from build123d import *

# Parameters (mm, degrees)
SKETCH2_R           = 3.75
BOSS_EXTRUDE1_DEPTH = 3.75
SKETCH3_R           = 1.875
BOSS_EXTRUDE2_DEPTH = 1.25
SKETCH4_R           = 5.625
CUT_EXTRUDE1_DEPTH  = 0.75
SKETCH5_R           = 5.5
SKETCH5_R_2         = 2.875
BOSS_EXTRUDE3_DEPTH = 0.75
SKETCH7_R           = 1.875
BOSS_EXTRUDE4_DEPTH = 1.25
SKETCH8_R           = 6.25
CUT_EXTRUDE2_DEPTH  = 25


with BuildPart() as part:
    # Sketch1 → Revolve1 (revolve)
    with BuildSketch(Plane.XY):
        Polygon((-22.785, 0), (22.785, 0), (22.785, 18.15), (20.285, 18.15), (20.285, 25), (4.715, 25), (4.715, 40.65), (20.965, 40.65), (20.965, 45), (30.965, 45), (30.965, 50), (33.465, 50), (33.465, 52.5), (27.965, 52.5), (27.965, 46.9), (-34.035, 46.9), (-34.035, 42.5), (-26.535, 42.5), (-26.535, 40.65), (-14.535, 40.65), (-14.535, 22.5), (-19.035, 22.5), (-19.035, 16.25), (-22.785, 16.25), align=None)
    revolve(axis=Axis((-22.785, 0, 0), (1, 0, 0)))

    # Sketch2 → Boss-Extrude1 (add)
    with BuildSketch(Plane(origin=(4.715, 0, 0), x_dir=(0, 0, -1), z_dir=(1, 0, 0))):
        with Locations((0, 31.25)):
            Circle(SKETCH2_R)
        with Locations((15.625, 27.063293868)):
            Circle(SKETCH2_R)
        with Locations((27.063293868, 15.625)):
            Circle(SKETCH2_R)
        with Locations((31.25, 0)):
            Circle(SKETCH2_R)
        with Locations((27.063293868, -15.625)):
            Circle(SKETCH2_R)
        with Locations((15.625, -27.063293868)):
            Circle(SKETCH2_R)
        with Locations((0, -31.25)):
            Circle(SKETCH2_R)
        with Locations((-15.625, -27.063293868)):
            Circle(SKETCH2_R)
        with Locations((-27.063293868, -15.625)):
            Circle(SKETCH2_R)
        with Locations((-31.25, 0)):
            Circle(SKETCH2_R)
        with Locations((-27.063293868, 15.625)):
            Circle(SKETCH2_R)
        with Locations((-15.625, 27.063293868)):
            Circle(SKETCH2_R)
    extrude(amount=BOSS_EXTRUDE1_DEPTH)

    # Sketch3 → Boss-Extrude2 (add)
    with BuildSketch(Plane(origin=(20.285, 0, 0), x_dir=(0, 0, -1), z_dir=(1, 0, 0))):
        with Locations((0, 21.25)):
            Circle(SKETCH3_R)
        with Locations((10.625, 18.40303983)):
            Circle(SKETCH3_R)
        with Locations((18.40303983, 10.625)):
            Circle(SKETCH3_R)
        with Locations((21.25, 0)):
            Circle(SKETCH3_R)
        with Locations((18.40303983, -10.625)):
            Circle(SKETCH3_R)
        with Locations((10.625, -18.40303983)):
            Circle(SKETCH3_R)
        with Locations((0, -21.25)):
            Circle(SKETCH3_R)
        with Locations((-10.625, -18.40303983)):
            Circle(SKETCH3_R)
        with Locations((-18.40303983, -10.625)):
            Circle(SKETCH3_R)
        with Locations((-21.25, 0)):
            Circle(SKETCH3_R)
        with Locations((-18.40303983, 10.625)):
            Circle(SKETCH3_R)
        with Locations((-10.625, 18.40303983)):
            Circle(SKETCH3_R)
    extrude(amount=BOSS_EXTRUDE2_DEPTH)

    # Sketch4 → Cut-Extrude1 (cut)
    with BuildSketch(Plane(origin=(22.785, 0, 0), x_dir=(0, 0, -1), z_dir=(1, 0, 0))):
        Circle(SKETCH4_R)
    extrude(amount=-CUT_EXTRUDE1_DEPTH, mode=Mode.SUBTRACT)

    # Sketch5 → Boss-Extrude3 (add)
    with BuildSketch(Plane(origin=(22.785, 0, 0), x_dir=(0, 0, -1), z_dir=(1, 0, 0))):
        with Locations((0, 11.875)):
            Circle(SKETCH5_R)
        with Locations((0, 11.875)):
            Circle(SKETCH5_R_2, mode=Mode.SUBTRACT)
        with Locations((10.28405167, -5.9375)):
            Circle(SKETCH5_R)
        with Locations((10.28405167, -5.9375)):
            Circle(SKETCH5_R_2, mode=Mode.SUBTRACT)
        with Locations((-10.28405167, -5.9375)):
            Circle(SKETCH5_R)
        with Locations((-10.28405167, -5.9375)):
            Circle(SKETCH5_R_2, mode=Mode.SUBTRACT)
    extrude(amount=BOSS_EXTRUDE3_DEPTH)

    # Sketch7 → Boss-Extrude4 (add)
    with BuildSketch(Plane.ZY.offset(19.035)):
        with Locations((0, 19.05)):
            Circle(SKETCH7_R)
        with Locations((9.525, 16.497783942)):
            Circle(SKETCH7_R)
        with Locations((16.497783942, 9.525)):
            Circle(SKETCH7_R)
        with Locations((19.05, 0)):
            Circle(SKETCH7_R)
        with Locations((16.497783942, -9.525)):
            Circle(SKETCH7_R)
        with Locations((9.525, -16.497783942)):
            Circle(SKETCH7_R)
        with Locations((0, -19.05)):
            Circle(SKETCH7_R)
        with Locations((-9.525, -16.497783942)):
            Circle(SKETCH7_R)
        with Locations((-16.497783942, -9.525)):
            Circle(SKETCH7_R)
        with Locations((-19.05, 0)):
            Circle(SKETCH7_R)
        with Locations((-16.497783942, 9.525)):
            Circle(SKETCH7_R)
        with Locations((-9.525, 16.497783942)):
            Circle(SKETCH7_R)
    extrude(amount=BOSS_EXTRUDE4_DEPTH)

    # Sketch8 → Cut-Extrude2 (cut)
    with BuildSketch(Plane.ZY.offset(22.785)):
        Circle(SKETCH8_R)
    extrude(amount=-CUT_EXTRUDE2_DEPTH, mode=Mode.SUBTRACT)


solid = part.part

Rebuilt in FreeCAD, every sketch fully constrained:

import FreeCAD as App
import Part
import Sketcher

V = App.Vector


def add_polygon(sketch, points):
    """Adds a closed chain of lines whose ends are joined by coincident constraints."""
    first, n = sketch.GeometryCount, len(points)
    for a, b in zip(points, points[1:] + points[:1]):
        sketch.addGeometry(Part.LineSegment(App.Vector(*a, 0), App.Vector(*b, 0)), False)
    for i in range(n):
        sketch.addConstraint(Sketcher.Constraint("Coincident", first + i, 2, first + (i + 1) % n, 1))

doc = App.newDocument("Part")
body = doc.addObject("PartDesign::Body", "Body")

# Sketch on XY plane
sketch1 = doc.addObject("Sketcher::SketchObject", "Sketch")
body.addObject(sketch1)
sketch1.AttachmentSupport = (doc.XY_Plane, [""])
sketch1.MapMode = "FlatFace"
add_polygon(sketch1, [(-22.785, 0), (22.785, 0), (22.785, 18.15), (20.285, 18.15), (20.285, 25), (4.715, 25), (4.715, 40.65), (20.965, 40.65), (20.965, 45), (30.965, 45), (30.965, 50), (33.465, 50), (33.465, 52.5), (27.965, 52.5), (27.965, 46.9), (-34.035, 46.9), (-34.035, 42.5), (-26.535, 42.5), (-26.535, 40.65), (-14.535, 40.65), (-14.535, 22.5), (-19.035, 22.5), (-19.035, 16.25), (-22.785, 16.25)])  # lines 0-23
sketch1.addConstraint(Sketcher.Constraint("Horizontal", 0))
sketch1.addConstraint(Sketcher.Constraint("Vertical", 1))
sketch1.addConstraint(Sketcher.Constraint("Horizontal", 2))
sketch1.addConstraint(Sketcher.Constraint("Vertical", 3))
sketch1.addConstraint(Sketcher.Constraint("Horizontal", 4))
sketch1.addConstraint(Sketcher.Constraint("Vertical", 5))
sketch1.addConstraint(Sketcher.Constraint("Horizontal", 6))
sketch1.addConstraint(Sketcher.Constraint("Vertical", 7))
sketch1.addConstraint(Sketcher.Constraint("Horizontal", 8))
sketch1.addConstraint(Sketcher.Constraint("Vertical", 9))
sketch1.addConstraint(Sketcher.Constraint("Horizontal", 10))
sketch1.addConstraint(Sketcher.Constraint("Vertical", 11))
sketch1.addConstraint(Sketcher.Constraint("Horizontal", 12))
sketch1.addConstraint(Sketcher.Constraint("Vertical", 13))
sketch1.addConstraint(Sketcher.Constraint("Horizontal", 14))
sketch1.addConstraint(Sketcher.Constraint("Vertical", 15))
sketch1.addConstraint(Sketcher.Constraint("Horizontal", 16))
sketch1.addConstraint(Sketcher.Constraint("Vertical", 17))
sketch1.addConstraint(Sketcher.Constraint("Horizontal", 18))
sketch1.addConstraint(Sketcher.Constraint("Vertical", 19))
sketch1.addConstraint(Sketcher.Constraint("Horizontal", 20))
sketch1.addConstraint(Sketcher.Constraint("Vertical", 21))
sketch1.addConstraint(Sketcher.Constraint("Horizontal", 22))
sketch1.addConstraint(Sketcher.Constraint("Vertical", 23))
sketch1.addConstraint(Sketcher.Constraint("Symmetric", 0, 2, 23, 2, -1, 1))
sketch1.addConstraint(Sketcher.Constraint("Horizontal", 6, 2, 17, 2))
sketch1.addConstraint(Sketcher.Constraint("Equal", 2, 10))
sketch1.addConstraint(Sketcher.Constraint("Equal", 10, 11))
sketch1.addConstraint(Sketcher.Constraint("Equal", 1, 19))
sketch1.addConstraint(Sketcher.Constraint("Equal", 6, 23))
sketch1.addConstraint(Sketcher.Constraint("DistanceX", 8, 1, 8, 2, 10.0))
sketch1.addConstraint(Sketcher.Constraint("DistanceX", 14, 2, 14, 1, 62.0))
sketch1.addConstraint(Sketcher.Constraint("DistanceX", 18, 1, 18, 2, 12.0))
sketch1.addConstraint(Sketcher.Constraint("DistanceY", 9, 1, 9, 2, 5.0))
sketch1.addConstraint(Sketcher.Constraint("DistanceX", 2, 2, 2, 1, 2.5))
sketch1.addConstraint(Sketcher.Constraint("DistanceX", 12, 2, 12, 1, 5.5))
sketch1.addConstraint(Sketcher.Constraint("DistanceX", 16, 1, 16, 2, 7.5))
sketch1.addConstraint(Sketcher.Constraint("DistanceX", 20, 2, 20, 1, 4.5))
sketch1.addConstraint(Sketcher.Constraint("DistanceY", 13, 2, 13, 1, 5.6))
sketch1.addConstraint(Sketcher.Constraint("DistanceY", 15, 2, 15, 1, 4.4))
sketch1.addConstraint(Sketcher.Constraint("DistanceY", -1, 1, 3, 2, 25.0))
sketch1.addConstraint(Sketcher.Constraint("DistanceY", -1, 1, 7, 2, 45.0))
sketch1.addConstraint(Sketcher.Constraint("DistanceY", 19, 2, 16, 2, 20.0))
sketch1.addConstraint(Sketcher.Constraint("DistanceX", 0, 1, 0, 2, 45.57))
sketch1.addConstraint(Sketcher.Constraint("DistanceX", 4, 2, 4, 1, 15.57))
sketch1.addConstraint(Sketcher.Constraint("DistanceX", 6, 1, 6, 2, 16.25))
sketch1.addConstraint(Sketcher.Constraint("DistanceY", 1, 1, 1, 2, 18.15))
revolution = doc.addObject("PartDesign::Revolution", "Revolution")
body.addObject(revolution)
revolution.Profile = sketch1
revolution.ReferenceAxis = (sketch1, ["H_Axis"])
revolution.Angle = 360

# Sketch on YZ plane
sketch2 = doc.addObject("Sketcher::SketchObject", "Sketch001")
body.addObject(sketch2)
sketch2.AttachmentSupport = (doc.YZ_Plane, [""])
sketch2.MapMode = "FlatFace"
sketch2.AttachmentOffset = App.Placement(V(0, 0, 4.715), App.Rotation())
sketch2.addGeometry(Part.Circle(V(31.25, 0, 0), V(0, 0, 1), 3.75), False)
sketch2.addGeometry(Part.Circle(V(27.063294, -15.625, 0), V(0, 0, 1), 3.75), False)
sketch2.addGeometry(Part.Circle(V(15.625, -27.063294, 0), V(0, 0, 1), 3.75), False)
sketch2.addGeometry(Part.Circle(V(0, -31.25, 0), V(0, 0, 1), 3.75), False)
sketch2.addGeometry(Part.Circle(V(-15.625, -27.063294, 0), V(0, 0, 1), 3.75), False)
sketch2.addGeometry(Part.Circle(V(-27.063294, -15.625, 0), V(0, 0, 1), 3.75), False)
sketch2.addGeometry(Part.Circle(V(-31.25, 0, 0), V(0, 0, 1), 3.75), False)
sketch2.addGeometry(Part.Circle(V(-27.063294, 15.625, 0), V(0, 0, 1), 3.75), False)
sketch2.addGeometry(Part.Circle(V(-15.625, 27.063294, 0), V(0, 0, 1), 3.75), False)
sketch2.addGeometry(Part.Circle(V(0, 31.25, 0), V(0, 0, 1), 3.75), False)
sketch2.addGeometry(Part.Circle(V(15.625, 27.063294, 0), V(0, 0, 1), 3.75), False)
sketch2.addGeometry(Part.Circle(V(27.063294, 15.625, 0), V(0, 0, 1), 3.75), False)
sketch2.addConstraint(Sketcher.Constraint("Equal", 0, 1))
sketch2.addConstraint(Sketcher.Constraint("Equal", 1, 2))
sketch2.addConstraint(Sketcher.Constraint("Equal", 2, 3))
sketch2.addConstraint(Sketcher.Constraint("Equal", 3, 4))
sketch2.addConstraint(Sketcher.Constraint("Equal", 4, 5))
sketch2.addConstraint(Sketcher.Constraint("Equal", 5, 6))
sketch2.addConstraint(Sketcher.Constraint("Equal", 6, 7))
sketch2.addConstraint(Sketcher.Constraint("Equal", 7, 8))
sketch2.addConstraint(Sketcher.Constraint("Equal", 8, 9))
sketch2.addConstraint(Sketcher.Constraint("Equal", 9, 10))
sketch2.addConstraint(Sketcher.Constraint("Equal", 10, 11))
sketch2.addConstraint(Sketcher.Constraint("Symmetric", 0, 3, 6, 3, -1, 1))
sketch2.addConstraint(Sketcher.Constraint("Symmetric", 1, 3, 7, 3, -1, 1))
sketch2.addConstraint(Sketcher.Constraint("Symmetric", 2, 3, 8, 3, -1, 1))
sketch2.addConstraint(Sketcher.Constraint("Symmetric", 3, 3, 9, 3, -1, 1))
sketch2.addConstraint(Sketcher.Constraint("Symmetric", 4, 3, 10, 3, -1, 1))
sketch2.addConstraint(Sketcher.Constraint("Symmetric", 5, 3, 11, 3, -1, 1))
sketch2.addConstraint(Sketcher.Constraint("Symmetric", 2, 3, 4, 3, -2))
sketch2.addConstraint(Sketcher.Constraint("Symmetric", 1, 3, 5, 3, -2))
sketch2.addConstraint(Sketcher.Constraint("PointOnObject", 0, 3, -1))
sketch2.addConstraint(Sketcher.Constraint("PointOnObject", 3, 3, -2))
sketch2.addConstraint(Sketcher.Constraint("Diameter", 0, 7.5))
sketch2.addConstraint(Sketcher.Constraint("DistanceX", -1, 1, 0, 3, 31.25))
sketch2.addConstraint(Sketcher.Constraint("DistanceY", 3, 3, -1, 1, 31.25))
sketch2.addConstraint(Sketcher.Constraint("DistanceX", 4, 3, 2, 3, 31.25))
sketch2.addConstraint(Sketcher.Constraint("DistanceY", 5, 3, 7, 3, 31.25))
sketch2.addConstraint(Sketcher.Constraint("DistanceX", -1, 1, 1, 3, 27.063294))
sketch2.addConstraint(Sketcher.Constraint("DistanceY", 2, 3, -1, 1, 27.063294))
pad1 = doc.addObject("PartDesign::Pad", "Pad")
body.addObject(pad1)
pad1.Profile = sketch2
pad1.Length = 3.75

# Sketch on YZ plane
sketch3 = doc.addObject("Sketcher::SketchObject", "Sketch002")
body.addObject(sketch3)
sketch3.AttachmentSupport = (doc.YZ_Plane, [""])
sketch3.MapMode = "FlatFace"
sketch3.AttachmentOffset = App.Placement(V(0, 0, 20.285), App.Rotation())
sketch3.addGeometry(Part.Circle(V(21.25, 0, 0), V(0, 0, 1), 1.875), False)
sketch3.addGeometry(Part.Circle(V(18.40304, -10.625, 0), V(0, 0, 1), 1.875), False)
sketch3.addGeometry(Part.Circle(V(10.625, -18.40304, 0), V(0, 0, 1), 1.875), False)
sketch3.addGeometry(Part.Circle(V(0, -21.25, 0), V(0, 0, 1), 1.875), False)
sketch3.addGeometry(Part.Circle(V(-10.625, -18.40304, 0), V(0, 0, 1), 1.875), False)
sketch3.addGeometry(Part.Circle(V(-18.40304, -10.625, 0), V(0, 0, 1), 1.875), False)
sketch3.addGeometry(Part.Circle(V(-21.25, 0, 0), V(0, 0, 1), 1.875), False)
sketch3.addGeometry(Part.Circle(V(-18.40304, 10.625, 0), V(0, 0, 1), 1.875), False)
sketch3.addGeometry(Part.Circle(V(-10.625, 18.40304, 0), V(0, 0, 1), 1.875), False)
sketch3.addGeometry(Part.Circle(V(0, 21.25, 0), V(0, 0, 1), 1.875), False)
sketch3.addGeometry(Part.Circle(V(10.625, 18.40304, 0), V(0, 0, 1), 1.875), False)
sketch3.addGeometry(Part.Circle(V(18.40304, 10.625, 0), V(0, 0, 1), 1.875), False)
sketch3.addConstraint(Sketcher.Constraint("Equal", 0, 1))
sketch3.addConstraint(Sketcher.Constraint("Equal", 1, 2))
sketch3.addConstraint(Sketcher.Constraint("Equal", 2, 3))
sketch3.addConstraint(Sketcher.Constraint("Equal", 3, 4))
sketch3.addConstraint(Sketcher.Constraint("Equal", 4, 5))
sketch3.addConstraint(Sketcher.Constraint("Equal", 5, 6))
sketch3.addConstraint(Sketcher.Constraint("Equal", 6, 7))
sketch3.addConstraint(Sketcher.Constraint("Equal", 7, 8))
sketch3.addConstraint(Sketcher.Constraint("Equal", 8, 9))
sketch3.addConstraint(Sketcher.Constraint("Equal", 9, 10))
sketch3.addConstraint(Sketcher.Constraint("Equal", 10, 11))
sketch3.addConstraint(Sketcher.Constraint("Symmetric", 0, 3, 6, 3, -1, 1))
sketch3.addConstraint(Sketcher.Constraint("Symmetric", 1, 3, 7, 3, -1, 1))
sketch3.addConstraint(Sketcher.Constraint("Symmetric", 2, 3, 8, 3, -1, 1))
sketch3.addConstraint(Sketcher.Constraint("Symmetric", 3, 3, 9, 3, -1, 1))
sketch3.addConstraint(Sketcher.Constraint("Symmetric", 4, 3, 10, 3, -1, 1))
sketch3.addConstraint(Sketcher.Constraint("Symmetric", 5, 3, 11, 3, -1, 1))
sketch3.addConstraint(Sketcher.Constraint("Symmetric", 2, 3, 4, 3, -2))
sketch3.addConstraint(Sketcher.Constraint("Symmetric", 1, 3, 5, 3, -2))
sketch3.addConstraint(Sketcher.Constraint("PointOnObject", 0, 3, -1))
sketch3.addConstraint(Sketcher.Constraint("PointOnObject", 3, 3, -2))
sketch3.addConstraint(Sketcher.Constraint("Diameter", 0, 3.75))
sketch3.addConstraint(Sketcher.Constraint("DistanceX", -1, 1, 0, 3, 21.25))
sketch3.addConstraint(Sketcher.Constraint("DistanceY", 3, 3, -1, 1, 21.25))
sketch3.addConstraint(Sketcher.Constraint("DistanceX", 4, 3, 2, 3, 21.25))
sketch3.addConstraint(Sketcher.Constraint("DistanceY", 5, 3, 7, 3, 21.25))
sketch3.addConstraint(Sketcher.Constraint("DistanceX", -1, 1, 1, 3, 18.40304))
sketch3.addConstraint(Sketcher.Constraint("DistanceY", 2, 3, -1, 1, 18.40304))
pad2 = doc.addObject("PartDesign::Pad", "Pad001")
body.addObject(pad2)
pad2.Profile = sketch3
pad2.Length = 1.25

# Sketch on YZ plane
sketch4 = doc.addObject("Sketcher::SketchObject", "Sketch003")
body.addObject(sketch4)
sketch4.AttachmentSupport = (doc.YZ_Plane, [""])
sketch4.MapMode = "FlatFace"
sketch4.AttachmentOffset = App.Placement(V(0, 0, 22.785), App.Rotation())
sketch4.addGeometry(Part.Circle(V(0, 0, 0), V(0, 0, 1), 5.625), False)
sketch4.addConstraint(Sketcher.Constraint("Coincident", 0, 3, -1, 1))
sketch4.addConstraint(Sketcher.Constraint("Diameter", 0, 11.25))
pocket1 = doc.addObject("PartDesign::Pocket", "Pocket")
body.addObject(pocket1)
pocket1.Profile = sketch4
pocket1.Length = 0.75

# Sketch on YZ plane
sketch5 = doc.addObject("Sketcher::SketchObject", "Sketch004")
body.addObject(sketch5)
sketch5.AttachmentSupport = (doc.YZ_Plane, [""])
sketch5.MapMode = "FlatFace"
sketch5.AttachmentOffset = App.Placement(V(0, 0, 22.785), App.Rotation())
sketch5.addGeometry(Part.Circle(V(11.875, 0, 0), V(0, 0, 1), 5.5), False)
sketch5.addGeometry(Part.Circle(V(11.875, 0, 0), V(0, 0, 1), 2.875), False)
sketch5.addGeometry(Part.Circle(V(-5.9375, -10.284052, 0), V(0, 0, 1), 5.5), False)
sketch5.addGeometry(Part.Circle(V(-5.9375, -10.284052, 0), V(0, 0, 1), 2.875), False)
sketch5.addGeometry(Part.Circle(V(-5.9375, 10.284052, 0), V(0, 0, 1), 5.5), False)
sketch5.addGeometry(Part.Circle(V(-5.9375, 10.284052, 0), V(0, 0, 1), 2.875), False)
sketch5.addConstraint(Sketcher.Constraint("Coincident", 1, 3, 0, 3))
sketch5.addConstraint(Sketcher.Constraint("Coincident", 3, 3, 2, 3))
sketch5.addConstraint(Sketcher.Constraint("Coincident", 5, 3, 4, 3))
sketch5.addConstraint(Sketcher.Constraint("Equal", 0, 2))
sketch5.addConstraint(Sketcher.Constraint("Equal", 1, 3))
sketch5.addConstraint(Sketcher.Constraint("Equal", 2, 4))
sketch5.addConstraint(Sketcher.Constraint("Equal", 3, 5))
sketch5.addConstraint(Sketcher.Constraint("Symmetric", 2, 3, 4, 3, -1))
sketch5.addConstraint(Sketcher.Constraint("PointOnObject", 0, 3, -1))
sketch5.addConstraint(Sketcher.Constraint("Diameter", 0, 11.0))
sketch5.addConstraint(Sketcher.Constraint("Diameter", 1, 5.75))
sketch5.addConstraint(Sketcher.Constraint("DistanceX", -1, 1, 0, 3, 11.875))
sketch5.addConstraint(Sketcher.Constraint("DistanceX", 2, 3, -1, 1, 5.9375))
sketch5.addConstraint(Sketcher.Constraint("DistanceY", 2, 3, -1, 1, 10.284052))
pad3 = doc.addObject("PartDesign::Pad", "Pad002")
body.addObject(pad3)
pad3.Profile = sketch5
pad3.Length = 0.75

# Sketch on YZ plane
sketch6 = doc.addObject("Sketcher::SketchObject", "Sketch005")
body.addObject(sketch6)
sketch6.AttachmentSupport = (doc.YZ_Plane, [""])
sketch6.MapMode = "FlatFace"
sketch6.AttachmentOffset = App.Placement(V(0, 0, -19.035), App.Rotation())
sketch6.addGeometry(Part.Circle(V(19.05, 0, 0), V(0, 0, 1), 1.875), False)
sketch6.addGeometry(Part.Circle(V(16.497784, 9.525, 0), V(0, 0, 1), 1.875), False)
sketch6.addGeometry(Part.Circle(V(9.525, 16.497784, 0), V(0, 0, 1), 1.875), False)
sketch6.addGeometry(Part.Circle(V(0, 19.05, 0), V(0, 0, 1), 1.875), False)
sketch6.addGeometry(Part.Circle(V(-9.525, 16.497784, 0), V(0, 0, 1), 1.875), False)
sketch6.addGeometry(Part.Circle(V(-16.497784, 9.525, 0), V(0, 0, 1), 1.875), False)
sketch6.addGeometry(Part.Circle(V(-19.05, 0, 0), V(0, 0, 1), 1.875), False)
sketch6.addGeometry(Part.Circle(V(-16.497784, -9.525, 0), V(0, 0, 1), 1.875), False)
sketch6.addGeometry(Part.Circle(V(-9.525, -16.497784, 0), V(0, 0, 1), 1.875), False)
sketch6.addGeometry(Part.Circle(V(0, -19.05, 0), V(0, 0, 1), 1.875), False)
sketch6.addGeometry(Part.Circle(V(9.525, -16.497784, 0), V(0, 0, 1), 1.875), False)
sketch6.addGeometry(Part.Circle(V(16.497784, -9.525, 0), V(0, 0, 1), 1.875), False)
sketch6.addConstraint(Sketcher.Constraint("Equal", 0, 1))
sketch6.addConstraint(Sketcher.Constraint("Equal", 1, 2))
sketch6.addConstraint(Sketcher.Constraint("Equal", 2, 3))
sketch6.addConstraint(Sketcher.Constraint("Equal", 3, 4))
sketch6.addConstraint(Sketcher.Constraint("Equal", 4, 5))
sketch6.addConstraint(Sketcher.Constraint("Equal", 5, 6))
sketch6.addConstraint(Sketcher.Constraint("Equal", 6, 7))
sketch6.addConstraint(Sketcher.Constraint("Equal", 7, 8))
sketch6.addConstraint(Sketcher.Constraint("Equal", 8, 9))
sketch6.addConstraint(Sketcher.Constraint("Equal", 9, 10))
sketch6.addConstraint(Sketcher.Constraint("Equal", 10, 11))
sketch6.addConstraint(Sketcher.Constraint("Symmetric", 0, 3, 6, 3, -1, 1))
sketch6.addConstraint(Sketcher.Constraint("Symmetric", 1, 3, 7, 3, -1, 1))
sketch6.addConstraint(Sketcher.Constraint("Symmetric", 2, 3, 8, 3, -1, 1))
sketch6.addConstraint(Sketcher.Constraint("Symmetric", 3, 3, 9, 3, -1, 1))
sketch6.addConstraint(Sketcher.Constraint("Symmetric", 4, 3, 10, 3, -1, 1))
sketch6.addConstraint(Sketcher.Constraint("Symmetric", 5, 3, 11, 3, -1, 1))
sketch6.addConstraint(Sketcher.Constraint("Symmetric", 2, 3, 4, 3, -2))
sketch6.addConstraint(Sketcher.Constraint("Symmetric", 1, 3, 5, 3, -2))
sketch6.addConstraint(Sketcher.Constraint("PointOnObject", 0, 3, -1))
sketch6.addConstraint(Sketcher.Constraint("PointOnObject", 3, 3, -2))
sketch6.addConstraint(Sketcher.Constraint("Diameter", 0, 3.75))
sketch6.addConstraint(Sketcher.Constraint("DistanceX", -1, 1, 0, 3, 19.05))
sketch6.addConstraint(Sketcher.Constraint("DistanceY", -1, 1, 3, 3, 19.05))
sketch6.addConstraint(Sketcher.Constraint("DistanceX", 4, 3, 2, 3, 19.05))
sketch6.addConstraint(Sketcher.Constraint("DistanceY", 7, 3, 5, 3, 19.05))
sketch6.addConstraint(Sketcher.Constraint("DistanceX", -1, 1, 1, 3, 16.497784))
sketch6.addConstraint(Sketcher.Constraint("DistanceY", -1, 1, 2, 3, 16.497784))
pad4 = doc.addObject("PartDesign::Pad", "Pad003")
body.addObject(pad4)
pad4.Profile = sketch6
pad4.Length = 1.25
pad4.Reversed = True

# Sketch on YZ plane
sketch7 = doc.addObject("Sketcher::SketchObject", "Sketch006")
body.addObject(sketch7)
sketch7.AttachmentSupport = (doc.YZ_Plane, [""])
sketch7.MapMode = "FlatFace"
sketch7.AttachmentOffset = App.Placement(V(0, 0, -22.785), App.Rotation())
sketch7.addGeometry(Part.Circle(V(0, 0, 0), V(0, 0, 1), 6.25), False)
sketch7.addConstraint(Sketcher.Constraint("Coincident", 0, 3, -1, 1))
sketch7.addConstraint(Sketcher.Constraint("Diameter", 0, 12.5))
pocket2 = doc.addObject("PartDesign::Pocket", "Pocket001")
body.addObject(pocket2)
pocket2.Profile = sketch7
pocket2.Length = 25
pocket2.Reversed = True

doc.recompute()
